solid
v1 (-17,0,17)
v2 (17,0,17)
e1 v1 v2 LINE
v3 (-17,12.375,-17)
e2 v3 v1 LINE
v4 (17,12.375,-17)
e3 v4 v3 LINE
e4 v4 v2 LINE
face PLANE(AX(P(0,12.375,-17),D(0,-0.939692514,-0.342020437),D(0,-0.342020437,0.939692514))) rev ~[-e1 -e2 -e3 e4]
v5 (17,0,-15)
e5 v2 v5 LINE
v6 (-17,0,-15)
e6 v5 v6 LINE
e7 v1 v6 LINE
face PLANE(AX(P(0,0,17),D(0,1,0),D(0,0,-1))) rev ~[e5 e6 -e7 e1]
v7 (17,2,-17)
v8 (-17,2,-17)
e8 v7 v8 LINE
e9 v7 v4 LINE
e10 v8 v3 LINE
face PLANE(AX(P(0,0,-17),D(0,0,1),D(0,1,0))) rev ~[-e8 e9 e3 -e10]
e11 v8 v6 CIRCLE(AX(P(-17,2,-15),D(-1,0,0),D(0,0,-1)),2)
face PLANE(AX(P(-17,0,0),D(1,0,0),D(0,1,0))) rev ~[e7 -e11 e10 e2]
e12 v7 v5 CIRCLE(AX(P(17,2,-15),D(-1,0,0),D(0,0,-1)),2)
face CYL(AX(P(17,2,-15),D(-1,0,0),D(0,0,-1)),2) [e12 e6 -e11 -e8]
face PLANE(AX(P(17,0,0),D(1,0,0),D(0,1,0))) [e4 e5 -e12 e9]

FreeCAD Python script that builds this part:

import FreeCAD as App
import Part
import Sketcher
from FreeCAD import Vector
Q = App.Units.Quantity


def edges_at(feature, points):
    """Names of the edges that pass closest to the given points."""
    edges = feature.Shape.Edges
    near = lambda p: min(range(len(edges)), key=lambda i: edges[i].distToShape(Part.Vertex(*p))[0])
    return sorted({f"Edge{near(p) + 1}" for p in points})

doc = App.newDocument("Part")
body = doc.addObject("PartDesign::Body", "Body")

sketch1 = body.newObject("Sketcher::SketchObject", "Sketch")
sketch1.AttachmentSupport = (doc.getObject("YZ_Plane"), [""])
sketch1.MapMode = "FlatFace"
sketch1.addGeometry([
    Part.LineSegment(Vector(12.375, -17, 0), Vector(0, 17, 0)),
    Part.LineSegment(Vector(0, 17, 0), Vector(0, -17, 0)),
    Part.LineSegment(Vector(0, -17, 0), Vector(12.375, -17, 0)),
], False)
sketch1.addConstraint([
    Sketcher.Constraint("Coincident", 0, 2, 1, 1),
    Sketcher.Constraint("Coincident", 1, 2, 2, 1),
    Sketcher.Constraint("Coincident", 2, 2, 0, 1),
    Sketcher.Constraint("Vertical", 1),
    Sketcher.Constraint("Horizontal", 2),
    Sketcher.Constraint("Symmetric", 0, 2, 1, 2, -1, 1),
    Sketcher.Constraint("DistanceY", 1, 2, 1, 1, 34.0),
    Sketcher.Constraint("Angle", 0, Q("110 deg")),
])
pad1 = body.newObject("PartDesign::Pad", "Pad")
pad1.Profile = sketch1
pad1.Length = 34
pad1.Midplane = True
doc.recompute()

fillet = body.newObject("PartDesign::Fillet", "Fillet")
fillet.Base = (pad1, edges_at(pad1, [(0, 0, -17)]))
fillet.Radius = 2

doc.recompute()
